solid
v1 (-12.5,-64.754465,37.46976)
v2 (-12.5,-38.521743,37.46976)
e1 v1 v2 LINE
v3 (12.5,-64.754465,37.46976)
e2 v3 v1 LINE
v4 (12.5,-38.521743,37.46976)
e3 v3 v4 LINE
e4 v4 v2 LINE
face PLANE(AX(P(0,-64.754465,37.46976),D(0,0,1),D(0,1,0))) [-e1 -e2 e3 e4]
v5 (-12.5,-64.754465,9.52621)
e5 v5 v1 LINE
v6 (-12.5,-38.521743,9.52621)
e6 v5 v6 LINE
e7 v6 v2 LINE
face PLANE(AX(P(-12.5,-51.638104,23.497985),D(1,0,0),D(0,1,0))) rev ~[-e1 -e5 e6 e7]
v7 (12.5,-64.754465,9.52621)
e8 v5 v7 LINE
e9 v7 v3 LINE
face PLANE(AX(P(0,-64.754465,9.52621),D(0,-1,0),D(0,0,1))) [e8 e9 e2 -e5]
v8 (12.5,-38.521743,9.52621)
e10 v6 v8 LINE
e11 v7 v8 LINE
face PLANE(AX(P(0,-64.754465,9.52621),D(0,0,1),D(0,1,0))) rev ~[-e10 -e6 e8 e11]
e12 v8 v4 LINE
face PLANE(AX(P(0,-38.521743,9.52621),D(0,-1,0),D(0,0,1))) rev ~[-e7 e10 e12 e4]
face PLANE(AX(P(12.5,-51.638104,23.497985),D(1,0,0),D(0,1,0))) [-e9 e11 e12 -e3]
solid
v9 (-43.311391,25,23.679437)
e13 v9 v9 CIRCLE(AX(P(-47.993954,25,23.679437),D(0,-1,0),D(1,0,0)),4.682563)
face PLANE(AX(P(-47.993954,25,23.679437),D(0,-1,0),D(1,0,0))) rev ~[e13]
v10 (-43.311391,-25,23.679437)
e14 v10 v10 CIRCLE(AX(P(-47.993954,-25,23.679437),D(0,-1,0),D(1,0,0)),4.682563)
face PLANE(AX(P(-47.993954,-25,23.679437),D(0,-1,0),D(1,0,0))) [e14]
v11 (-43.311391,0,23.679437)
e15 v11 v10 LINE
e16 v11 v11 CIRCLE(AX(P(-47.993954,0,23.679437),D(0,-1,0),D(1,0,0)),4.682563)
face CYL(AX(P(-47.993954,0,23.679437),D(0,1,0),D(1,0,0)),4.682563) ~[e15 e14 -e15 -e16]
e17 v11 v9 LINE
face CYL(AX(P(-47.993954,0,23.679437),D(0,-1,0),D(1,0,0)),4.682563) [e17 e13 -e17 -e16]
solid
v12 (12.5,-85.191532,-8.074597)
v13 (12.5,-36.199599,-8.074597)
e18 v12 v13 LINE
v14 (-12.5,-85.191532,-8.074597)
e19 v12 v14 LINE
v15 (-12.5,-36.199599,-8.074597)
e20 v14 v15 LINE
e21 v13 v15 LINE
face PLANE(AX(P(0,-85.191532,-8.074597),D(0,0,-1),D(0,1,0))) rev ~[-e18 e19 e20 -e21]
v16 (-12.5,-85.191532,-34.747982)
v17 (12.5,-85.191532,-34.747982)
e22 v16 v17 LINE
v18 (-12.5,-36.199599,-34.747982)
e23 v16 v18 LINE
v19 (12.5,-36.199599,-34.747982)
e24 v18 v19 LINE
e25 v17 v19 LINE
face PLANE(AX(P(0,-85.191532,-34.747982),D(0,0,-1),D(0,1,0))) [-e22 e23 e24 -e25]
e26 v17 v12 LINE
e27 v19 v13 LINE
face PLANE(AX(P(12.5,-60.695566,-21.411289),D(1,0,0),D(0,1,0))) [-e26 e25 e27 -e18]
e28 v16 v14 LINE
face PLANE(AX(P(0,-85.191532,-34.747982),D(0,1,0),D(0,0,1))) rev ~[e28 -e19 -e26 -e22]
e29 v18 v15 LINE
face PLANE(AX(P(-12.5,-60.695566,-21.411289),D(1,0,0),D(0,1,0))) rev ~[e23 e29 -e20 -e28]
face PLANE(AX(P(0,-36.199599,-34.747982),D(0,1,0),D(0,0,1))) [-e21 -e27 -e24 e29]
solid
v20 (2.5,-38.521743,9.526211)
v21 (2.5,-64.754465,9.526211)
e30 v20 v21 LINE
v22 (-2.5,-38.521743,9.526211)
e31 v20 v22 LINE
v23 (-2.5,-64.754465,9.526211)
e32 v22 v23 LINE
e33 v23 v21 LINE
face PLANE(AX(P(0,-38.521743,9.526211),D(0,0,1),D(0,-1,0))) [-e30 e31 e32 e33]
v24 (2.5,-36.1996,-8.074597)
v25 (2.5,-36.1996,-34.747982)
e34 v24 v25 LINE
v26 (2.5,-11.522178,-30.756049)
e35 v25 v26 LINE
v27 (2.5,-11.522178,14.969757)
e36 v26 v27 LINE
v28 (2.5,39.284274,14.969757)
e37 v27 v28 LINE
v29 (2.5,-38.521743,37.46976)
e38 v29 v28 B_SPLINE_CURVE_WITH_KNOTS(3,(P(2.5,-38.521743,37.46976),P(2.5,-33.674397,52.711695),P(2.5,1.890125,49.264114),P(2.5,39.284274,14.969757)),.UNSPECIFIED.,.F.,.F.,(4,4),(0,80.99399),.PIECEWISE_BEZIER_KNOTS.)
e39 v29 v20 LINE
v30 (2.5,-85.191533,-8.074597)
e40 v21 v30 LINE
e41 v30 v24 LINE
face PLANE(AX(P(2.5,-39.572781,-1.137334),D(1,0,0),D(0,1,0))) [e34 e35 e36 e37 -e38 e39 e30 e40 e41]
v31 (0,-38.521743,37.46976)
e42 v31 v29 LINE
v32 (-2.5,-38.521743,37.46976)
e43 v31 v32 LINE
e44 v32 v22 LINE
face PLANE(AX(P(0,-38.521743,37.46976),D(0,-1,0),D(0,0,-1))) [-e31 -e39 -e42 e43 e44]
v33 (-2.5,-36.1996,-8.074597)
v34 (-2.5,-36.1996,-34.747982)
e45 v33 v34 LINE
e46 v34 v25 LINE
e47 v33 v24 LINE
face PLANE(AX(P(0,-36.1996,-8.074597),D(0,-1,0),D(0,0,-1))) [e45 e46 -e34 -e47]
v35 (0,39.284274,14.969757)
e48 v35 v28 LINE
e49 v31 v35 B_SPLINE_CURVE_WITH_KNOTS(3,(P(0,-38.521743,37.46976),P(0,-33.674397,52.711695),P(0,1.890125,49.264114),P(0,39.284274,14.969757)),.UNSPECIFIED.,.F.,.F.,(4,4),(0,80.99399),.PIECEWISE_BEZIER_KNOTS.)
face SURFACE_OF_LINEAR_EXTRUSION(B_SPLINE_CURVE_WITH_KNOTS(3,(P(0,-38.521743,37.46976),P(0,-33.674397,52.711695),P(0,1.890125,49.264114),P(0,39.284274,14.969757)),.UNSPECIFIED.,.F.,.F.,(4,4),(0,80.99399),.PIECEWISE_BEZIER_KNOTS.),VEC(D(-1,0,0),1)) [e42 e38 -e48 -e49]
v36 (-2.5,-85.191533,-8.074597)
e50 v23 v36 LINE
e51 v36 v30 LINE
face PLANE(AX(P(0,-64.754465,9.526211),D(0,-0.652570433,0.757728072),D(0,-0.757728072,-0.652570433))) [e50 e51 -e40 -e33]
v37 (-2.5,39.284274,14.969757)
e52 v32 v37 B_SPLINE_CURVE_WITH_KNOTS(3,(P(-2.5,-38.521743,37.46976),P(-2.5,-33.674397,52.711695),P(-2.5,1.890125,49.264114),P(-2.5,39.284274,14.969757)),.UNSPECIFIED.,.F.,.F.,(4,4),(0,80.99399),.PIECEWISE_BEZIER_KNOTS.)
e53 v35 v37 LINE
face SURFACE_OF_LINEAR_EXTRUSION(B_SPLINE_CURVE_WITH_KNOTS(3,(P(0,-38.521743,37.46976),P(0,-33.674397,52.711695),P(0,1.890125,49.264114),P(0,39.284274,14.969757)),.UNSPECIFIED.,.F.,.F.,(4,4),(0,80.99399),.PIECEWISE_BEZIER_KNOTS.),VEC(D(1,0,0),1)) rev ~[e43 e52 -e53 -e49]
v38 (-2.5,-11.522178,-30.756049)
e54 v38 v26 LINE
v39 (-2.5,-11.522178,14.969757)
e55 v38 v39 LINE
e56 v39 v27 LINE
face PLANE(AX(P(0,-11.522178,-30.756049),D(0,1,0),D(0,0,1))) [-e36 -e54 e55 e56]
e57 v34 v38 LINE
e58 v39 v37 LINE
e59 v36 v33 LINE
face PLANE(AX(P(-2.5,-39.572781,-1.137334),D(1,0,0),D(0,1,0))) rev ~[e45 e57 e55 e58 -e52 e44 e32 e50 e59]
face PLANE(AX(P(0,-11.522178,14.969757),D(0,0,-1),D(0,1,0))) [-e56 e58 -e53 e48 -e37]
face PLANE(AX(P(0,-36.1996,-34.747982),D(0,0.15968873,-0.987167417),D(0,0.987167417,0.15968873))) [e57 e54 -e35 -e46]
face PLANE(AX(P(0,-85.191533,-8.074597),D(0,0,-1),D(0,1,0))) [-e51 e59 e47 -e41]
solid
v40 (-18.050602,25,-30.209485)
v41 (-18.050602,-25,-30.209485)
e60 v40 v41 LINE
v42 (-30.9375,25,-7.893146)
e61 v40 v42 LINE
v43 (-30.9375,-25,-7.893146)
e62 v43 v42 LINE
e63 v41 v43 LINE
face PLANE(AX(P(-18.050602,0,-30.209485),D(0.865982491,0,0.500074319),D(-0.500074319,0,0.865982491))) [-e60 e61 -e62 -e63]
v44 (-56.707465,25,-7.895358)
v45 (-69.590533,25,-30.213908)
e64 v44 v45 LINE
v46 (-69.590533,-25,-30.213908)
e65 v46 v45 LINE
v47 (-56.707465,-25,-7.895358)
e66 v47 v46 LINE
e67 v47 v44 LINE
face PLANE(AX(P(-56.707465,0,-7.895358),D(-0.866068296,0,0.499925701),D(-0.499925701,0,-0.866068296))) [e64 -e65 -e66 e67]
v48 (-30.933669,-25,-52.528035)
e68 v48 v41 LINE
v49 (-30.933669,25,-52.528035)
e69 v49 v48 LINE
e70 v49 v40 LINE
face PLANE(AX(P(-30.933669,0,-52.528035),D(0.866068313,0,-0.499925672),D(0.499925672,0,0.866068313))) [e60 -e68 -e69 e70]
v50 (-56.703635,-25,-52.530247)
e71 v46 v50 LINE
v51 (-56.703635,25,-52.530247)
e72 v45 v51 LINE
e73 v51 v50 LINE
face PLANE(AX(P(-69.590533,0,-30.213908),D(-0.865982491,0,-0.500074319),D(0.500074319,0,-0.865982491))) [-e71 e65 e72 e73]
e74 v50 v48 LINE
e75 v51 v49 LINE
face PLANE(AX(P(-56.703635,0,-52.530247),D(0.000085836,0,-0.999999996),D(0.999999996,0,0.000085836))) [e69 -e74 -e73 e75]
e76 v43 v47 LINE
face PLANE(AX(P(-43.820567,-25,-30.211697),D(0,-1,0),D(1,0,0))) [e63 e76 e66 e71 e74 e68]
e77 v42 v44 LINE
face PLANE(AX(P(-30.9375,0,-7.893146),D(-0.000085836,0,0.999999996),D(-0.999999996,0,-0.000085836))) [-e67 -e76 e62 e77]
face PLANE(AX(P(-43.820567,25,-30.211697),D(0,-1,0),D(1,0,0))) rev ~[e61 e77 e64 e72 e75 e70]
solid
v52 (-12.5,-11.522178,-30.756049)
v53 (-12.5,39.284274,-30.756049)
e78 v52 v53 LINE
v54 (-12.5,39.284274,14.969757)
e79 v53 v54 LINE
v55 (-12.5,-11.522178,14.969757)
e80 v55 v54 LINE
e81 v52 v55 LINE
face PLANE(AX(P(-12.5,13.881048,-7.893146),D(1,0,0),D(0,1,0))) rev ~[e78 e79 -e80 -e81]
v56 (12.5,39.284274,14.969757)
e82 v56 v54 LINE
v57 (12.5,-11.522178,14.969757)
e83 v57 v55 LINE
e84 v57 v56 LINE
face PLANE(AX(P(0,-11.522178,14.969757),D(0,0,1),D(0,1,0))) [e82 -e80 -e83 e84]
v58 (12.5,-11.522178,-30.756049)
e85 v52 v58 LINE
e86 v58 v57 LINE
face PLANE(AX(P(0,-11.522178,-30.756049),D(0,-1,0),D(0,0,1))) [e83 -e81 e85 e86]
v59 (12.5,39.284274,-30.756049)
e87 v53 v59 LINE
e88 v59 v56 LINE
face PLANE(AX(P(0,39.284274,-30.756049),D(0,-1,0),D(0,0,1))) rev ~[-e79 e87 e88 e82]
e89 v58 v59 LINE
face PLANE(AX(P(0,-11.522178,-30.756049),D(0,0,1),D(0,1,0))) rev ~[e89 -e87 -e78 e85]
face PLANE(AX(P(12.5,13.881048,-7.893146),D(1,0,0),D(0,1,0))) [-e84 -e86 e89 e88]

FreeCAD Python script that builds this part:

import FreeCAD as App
import Part
import Sketcher
from FreeCAD import Vector


def add_polygon(sketch, points):
    """Adds a closed chain of lines whose ends are joined by coincident constraints."""
    first, n = sketch.GeometryCount, len(points)
    for a, b in zip(points, points[1:] + points[:1]):
        sketch.addGeometry(Part.LineSegment(App.Vector(*a, 0), App.Vector(*b, 0)), False)
    for i in range(n):
        sketch.addConstraint(Sketcher.Constraint("Coincident", first + i, 2, first + (i + 1) % n, 1))

doc = App.newDocument("Part")
params = doc.addObject("Spreadsheet::Sheet", "Params")
for row, (alias, value) in enumerate([
    ("pad1_length", "25 mm"),
    ("pad2_length", "5 mm"),
    ("pad3_length", "50 mm"),
], start=1):
    params.set(f"A{row}", alias)
    params.set(f"B{row}", "=" + value)
    params.setAlias(f"B{row}", alias)

body = doc.addObject("PartDesign::Body", "Body")
body.AllowCompound = True

# Sketch on YZ plane
sketch1 = doc.addObject("Sketcher::SketchObject", "Sketch")
body.addObject(sketch1)
sketch1.AttachmentSupport = (doc.YZ_Plane, [""])
sketch1.MapMode = "FlatFace"
add_polygon(sketch1, [(-65, 37), (-65, 10), (-39, 10), (-39, 37)])  # lines 0-3
add_polygon(sketch1, [(-12, 15), (-12, -31), (39, -31), (39, 15)])  # lines 4-7
add_polygon(sketch1, [(-85, -8), (-85, -35), (-36, -35), (-36, -8)])  # lines 8-11
sketch1.addConstraint([
    Sketcher.Constraint("Vertical", 0),
    Sketcher.Constraint("Horizontal", 1),
    Sketcher.Constraint("Vertical", 2),
    Sketcher.Constraint("Horizontal", 3),
    Sketcher.Constraint("Vertical", 4),
    Sketcher.Constraint("Horizontal", 5),
    Sketcher.Constraint("Vertical", 6),
    Sketcher.Constraint("Horizontal", 7),
    Sketcher.Constraint("Vertical", 8),
    Sketcher.Constraint("Horizontal", 9),
    Sketcher.Constraint("Vertical", 10),
    Sketcher.Constraint("Horizontal", 11),
    Sketcher.Constraint("DistanceX", 1, 1, 1, 2, 26.232722),
    Sketcher.Constraint("DistanceY", 0, 2, 0, 1, 27.943549),
    Sketcher.Constraint("DistanceX", 9, 2, -1, 1, 36.199599),
    Sketcher.Constraint("DistanceX", 5, 1, 5, 2, 50.806452),
    Sketcher.Constraint("DistanceX", 9, 1, 9, 2, 48.991933),
    Sketcher.Constraint("DistanceY", 4, 2, 4, 1, 45.725806),
    Sketcher.Constraint("DistanceY", 8, 2, 8, 1, 26.673385),
    Sketcher.Constraint("DistanceY", -1, 1, 0, 2, 9.52621),
    Sketcher.Constraint("DistanceY", 4, 2, -1, 1, 30.756049),
    Sketcher.Constraint("DistanceY", 8, 2, -1, 1, 34.747982),
    Sketcher.Constraint("DistanceX", 0, 2, 5, 2, 104.038739),
    Sketcher.Constraint("DistanceX", 8, 2, 1, 2, 46.669789),
])
pad1 = doc.addObject("PartDesign::Pad", "Pad")
body.addObject(pad1)
pad1.Profile = sketch1
pad1.setExpression("Length", "Params.pad1_length")
pad1.Midplane = True
body2 = doc.addObject("PartDesign::Body", "Body001")

# Sketch on YZ plane
sketch2 = doc.addObject("Sketcher::SketchObject", "Sketch001")
body2.addObject(sketch2)
sketch2.AttachmentSupport = (doc.getObject("YZ_Plane001"), [""])
sketch2.MapMode = "FlatFace"
sketch2.addGeometry([
    Part.LineSegment(Vector(-38.521743, 9.526211, 0), Vector(-64.754465, 9.526211, 0)),  # 0
    Part.LineSegment(Vector(-64.754465, 9.526211, 0), Vector(-85.191533, -8.074597, 0)),  # 1
    Part.LineSegment(Vector(-85.191533, -8.074597, 0), Vector(-36.1996, -8.074597, 0)),  # 2
    Part.LineSegment(Vector(-36.1996, -8.074597, 0), Vector(-36.1996, -34.747982, 0)),  # 3
    Part.LineSegment(Vector(-36.1996, -34.747982, 0), Vector(-11.522178, -30.756049, 0)),  # 4
    Part.LineSegment(Vector(-11.522178, -30.756049, 0), Vector(-11.522178, 14.969757, 0)),  # 5
    Part.LineSegment(Vector(-11.522178, 14.969757, 0), Vector(39.284274, 14.969757, 0)),  # 6
    Part.BSplineCurve([Vector(-38.521743, 37.46976, 0), Vector(-33.674397, 52.711695, 0), Vector(1.890125, 49.264114, 0), Vector(39.284274, 14.969757, 0)], [4, 4], [0, 80.99399], False, 3, [1, 1, 1, 1], False),  # 7
    Part.LineSegment(Vector(-38.521743, 37.46976, 0), Vector(-38.521743, 9.526211, 0)),  # 8
], False)
sketch2.addConstraint([
    Sketcher.Constraint("Block", 7),
    Sketcher.Constraint("Coincident", 0, 2, 1, 1),
    Sketcher.Constraint("Coincident", 1, 2, 2, 1),
    Sketcher.Constraint("Coincident", 2, 2, 3, 1),
    Sketcher.Constraint("Coincident", 3, 2, 4, 1),
    Sketcher.Constraint("Coincident", 4, 2, 5, 1),
    Sketcher.Constraint("Coincident", 5, 2, 6, 1),
    Sketcher.Constraint("Coincident", 6, 2, 7, 2),
    Sketcher.Constraint("Coincident", 7, 1, 8, 1),
    Sketcher.Constraint("Coincident", 8, 2, 0, 1),
    Sketcher.Constraint("Horizontal", 0),
    Sketcher.Constraint("Horizontal", 2),
    Sketcher.Constraint("Vertical", 3),
    Sketcher.Constraint("Vertical", 5),
    Sketcher.Constraint("Horizontal", 6),
    Sketcher.Constraint("Vertical", 8),
    Sketcher.Constraint("DistanceX", 0, 2, 0, 1, 26.232722),
    Sketcher.Constraint("DistanceY", 8, 2, 8, 1, 27.943549),
    Sketcher.Constraint("DistanceX", 2, 2, -1, 1, 36.1996),
    Sketcher.Constraint("DistanceX", 2, 1, 2, 2, 48.991933),
    Sketcher.Constraint("DistanceX", 6, 1, 6, 2, 50.806452),
    Sketcher.Constraint("DistanceY", 3, 2, 3, 1, 26.673385),
    Sketcher.Constraint("DistanceY", 5, 1, 5, 2, 45.725806),
    Sketcher.Constraint("DistanceY", 1, 2, 0, 2, 17.600808),
])
pad2 = doc.addObject("PartDesign::Pad", "Pad001")
body2.addObject(pad2)
pad2.Profile = sketch2
pad2.setExpression("Length", "Params.pad2_length")
pad2.Midplane = True
body3 = doc.addObject("PartDesign::Body", "Body002")
body3.AllowCompound = True

# Sketch on XZ plane
sketch3 = doc.addObject("Sketcher::SketchObject", "Sketch002")
body3.addObject(sketch3)
sketch3.AttachmentSupport = (doc.getObject("XZ_Plane002"), [""])
sketch3.MapMode = "FlatFace"
sketch3.addGeometry(Part.Circle(Vector(-48, 23.7, 0), Vector(0, 0, 1), 4.7), False)  # 0
add_polygon(sketch3, [(-69.6, -30.2), (-56.7, -52.5), (-30.9, -52.5), (-18.1, -30.2), (-30.9, -7.9), (-56.7, -7.9)])  # lines 1-6
sketch3.addConstraint([
    Sketcher.Constraint("Parallel", 1, 4),
    Sketcher.Constraint("Parallel", 2, 5),
    Sketcher.Constraint("Parallel", 3, 6),
    Sketcher.Constraint("Equal", 1, 2),
    Sketcher.Constraint("Equal", 2, 3),
    Sketcher.Constraint("Equal", 3, 4),
    Sketcher.Constraint("Diameter", 0, 9.365126),
    Sketcher.Constraint("DistanceX", 4, 2, -1, 1, 30.9375),
    Sketcher.Constraint("DistanceY", 1, 2, 4, 2, 44.637101),
    Sketcher.Constraint("DistanceX", 2, 2, -1, 1, 30.933669),
    Sketcher.Constraint("DistanceY", 6, 2, -1, 1, 30.213908),
    Sketcher.Constraint("DistanceX", 1, 2, 0, 3, 8.709681),
    Sketcher.Constraint("DistanceY", 2, 2, 0, 3, 76.207472),
    Sketcher.Constraint("DistanceY", 2, 2, 3, 2, 22.31855),
    Sketcher.Constraint("DistanceX", 6, 2, 3, 2, 51.539931),
])
pad3 = doc.addObject("PartDesign::Pad", "Pad002")
body3.addObject(pad3)
pad3.Profile = sketch3
pad3.setExpression("Length", "Params.pad3_length")
pad3.Midplane = True

doc.recompute()
